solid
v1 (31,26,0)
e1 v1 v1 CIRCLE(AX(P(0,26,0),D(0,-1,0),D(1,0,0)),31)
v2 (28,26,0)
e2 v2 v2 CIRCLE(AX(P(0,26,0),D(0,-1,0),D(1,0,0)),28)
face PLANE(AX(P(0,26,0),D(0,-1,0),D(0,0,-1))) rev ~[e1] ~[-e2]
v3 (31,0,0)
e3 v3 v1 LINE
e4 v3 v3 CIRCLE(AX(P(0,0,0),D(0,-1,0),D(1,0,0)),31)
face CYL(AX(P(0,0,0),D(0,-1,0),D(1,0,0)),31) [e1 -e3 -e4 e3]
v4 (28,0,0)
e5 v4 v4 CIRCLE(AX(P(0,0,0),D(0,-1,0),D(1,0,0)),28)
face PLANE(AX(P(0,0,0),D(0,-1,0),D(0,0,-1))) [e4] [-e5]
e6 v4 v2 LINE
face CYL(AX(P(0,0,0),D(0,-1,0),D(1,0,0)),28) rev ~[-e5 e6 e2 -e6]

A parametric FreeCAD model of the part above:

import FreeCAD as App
import Part
import Sketcher

V = App.Vector

doc = App.newDocument("Part")
params = doc.addObject("Spreadsheet::Sheet", "Params")
for row, (alias, value) in enumerate([
    ("sketch1_diameter", "62 mm"),
    ("sketch1_diameter2", "56 mm"),
    ("pad1_length", "26 mm"),
], start=1):
    params.set(f"A{row}", alias)
    params.set(f"B{row}", "=" + value)
    params.setAlias(f"B{row}", alias)

body = doc.addObject("PartDesign::Body", "Body")

sketch1 = body.newObject("Sketcher::SketchObject", "Sketch")
sketch1.AttachmentSupport = (doc.getObject("XZ_Plane"), [""])
sketch1.MapMode = "FlatFace"
sketch1.addGeometry([
    Part.Circle(V(0, 0, 0), V(0, 0, 1), 31),
    Part.Circle(V(0, 0, 0), V(0, 0, 1), 28),
], False)
sketch1.addConstraint([
    Sketcher.Constraint("Coincident", 0, 3, -1, 1),
    Sketcher.Constraint("Coincident", 1, 3, -1, 1),
    Sketcher.Constraint("Diameter", 0, 62.0),
    Sketcher.Constraint("Diameter", 1, 56.0),
])
sketch1.setExpression("Constraints[2]", "Params.sketch1_diameter")
sketch1.setExpression("Constraints[3]", "Params.sketch1_diameter2")
pad1 = body.newObject("PartDesign::Pad", "Pad")
pad1.Profile = sketch1
pad1.setExpression("Length", "Params.pad1_length")
pad1.Reversed = True

doc.recompute()
